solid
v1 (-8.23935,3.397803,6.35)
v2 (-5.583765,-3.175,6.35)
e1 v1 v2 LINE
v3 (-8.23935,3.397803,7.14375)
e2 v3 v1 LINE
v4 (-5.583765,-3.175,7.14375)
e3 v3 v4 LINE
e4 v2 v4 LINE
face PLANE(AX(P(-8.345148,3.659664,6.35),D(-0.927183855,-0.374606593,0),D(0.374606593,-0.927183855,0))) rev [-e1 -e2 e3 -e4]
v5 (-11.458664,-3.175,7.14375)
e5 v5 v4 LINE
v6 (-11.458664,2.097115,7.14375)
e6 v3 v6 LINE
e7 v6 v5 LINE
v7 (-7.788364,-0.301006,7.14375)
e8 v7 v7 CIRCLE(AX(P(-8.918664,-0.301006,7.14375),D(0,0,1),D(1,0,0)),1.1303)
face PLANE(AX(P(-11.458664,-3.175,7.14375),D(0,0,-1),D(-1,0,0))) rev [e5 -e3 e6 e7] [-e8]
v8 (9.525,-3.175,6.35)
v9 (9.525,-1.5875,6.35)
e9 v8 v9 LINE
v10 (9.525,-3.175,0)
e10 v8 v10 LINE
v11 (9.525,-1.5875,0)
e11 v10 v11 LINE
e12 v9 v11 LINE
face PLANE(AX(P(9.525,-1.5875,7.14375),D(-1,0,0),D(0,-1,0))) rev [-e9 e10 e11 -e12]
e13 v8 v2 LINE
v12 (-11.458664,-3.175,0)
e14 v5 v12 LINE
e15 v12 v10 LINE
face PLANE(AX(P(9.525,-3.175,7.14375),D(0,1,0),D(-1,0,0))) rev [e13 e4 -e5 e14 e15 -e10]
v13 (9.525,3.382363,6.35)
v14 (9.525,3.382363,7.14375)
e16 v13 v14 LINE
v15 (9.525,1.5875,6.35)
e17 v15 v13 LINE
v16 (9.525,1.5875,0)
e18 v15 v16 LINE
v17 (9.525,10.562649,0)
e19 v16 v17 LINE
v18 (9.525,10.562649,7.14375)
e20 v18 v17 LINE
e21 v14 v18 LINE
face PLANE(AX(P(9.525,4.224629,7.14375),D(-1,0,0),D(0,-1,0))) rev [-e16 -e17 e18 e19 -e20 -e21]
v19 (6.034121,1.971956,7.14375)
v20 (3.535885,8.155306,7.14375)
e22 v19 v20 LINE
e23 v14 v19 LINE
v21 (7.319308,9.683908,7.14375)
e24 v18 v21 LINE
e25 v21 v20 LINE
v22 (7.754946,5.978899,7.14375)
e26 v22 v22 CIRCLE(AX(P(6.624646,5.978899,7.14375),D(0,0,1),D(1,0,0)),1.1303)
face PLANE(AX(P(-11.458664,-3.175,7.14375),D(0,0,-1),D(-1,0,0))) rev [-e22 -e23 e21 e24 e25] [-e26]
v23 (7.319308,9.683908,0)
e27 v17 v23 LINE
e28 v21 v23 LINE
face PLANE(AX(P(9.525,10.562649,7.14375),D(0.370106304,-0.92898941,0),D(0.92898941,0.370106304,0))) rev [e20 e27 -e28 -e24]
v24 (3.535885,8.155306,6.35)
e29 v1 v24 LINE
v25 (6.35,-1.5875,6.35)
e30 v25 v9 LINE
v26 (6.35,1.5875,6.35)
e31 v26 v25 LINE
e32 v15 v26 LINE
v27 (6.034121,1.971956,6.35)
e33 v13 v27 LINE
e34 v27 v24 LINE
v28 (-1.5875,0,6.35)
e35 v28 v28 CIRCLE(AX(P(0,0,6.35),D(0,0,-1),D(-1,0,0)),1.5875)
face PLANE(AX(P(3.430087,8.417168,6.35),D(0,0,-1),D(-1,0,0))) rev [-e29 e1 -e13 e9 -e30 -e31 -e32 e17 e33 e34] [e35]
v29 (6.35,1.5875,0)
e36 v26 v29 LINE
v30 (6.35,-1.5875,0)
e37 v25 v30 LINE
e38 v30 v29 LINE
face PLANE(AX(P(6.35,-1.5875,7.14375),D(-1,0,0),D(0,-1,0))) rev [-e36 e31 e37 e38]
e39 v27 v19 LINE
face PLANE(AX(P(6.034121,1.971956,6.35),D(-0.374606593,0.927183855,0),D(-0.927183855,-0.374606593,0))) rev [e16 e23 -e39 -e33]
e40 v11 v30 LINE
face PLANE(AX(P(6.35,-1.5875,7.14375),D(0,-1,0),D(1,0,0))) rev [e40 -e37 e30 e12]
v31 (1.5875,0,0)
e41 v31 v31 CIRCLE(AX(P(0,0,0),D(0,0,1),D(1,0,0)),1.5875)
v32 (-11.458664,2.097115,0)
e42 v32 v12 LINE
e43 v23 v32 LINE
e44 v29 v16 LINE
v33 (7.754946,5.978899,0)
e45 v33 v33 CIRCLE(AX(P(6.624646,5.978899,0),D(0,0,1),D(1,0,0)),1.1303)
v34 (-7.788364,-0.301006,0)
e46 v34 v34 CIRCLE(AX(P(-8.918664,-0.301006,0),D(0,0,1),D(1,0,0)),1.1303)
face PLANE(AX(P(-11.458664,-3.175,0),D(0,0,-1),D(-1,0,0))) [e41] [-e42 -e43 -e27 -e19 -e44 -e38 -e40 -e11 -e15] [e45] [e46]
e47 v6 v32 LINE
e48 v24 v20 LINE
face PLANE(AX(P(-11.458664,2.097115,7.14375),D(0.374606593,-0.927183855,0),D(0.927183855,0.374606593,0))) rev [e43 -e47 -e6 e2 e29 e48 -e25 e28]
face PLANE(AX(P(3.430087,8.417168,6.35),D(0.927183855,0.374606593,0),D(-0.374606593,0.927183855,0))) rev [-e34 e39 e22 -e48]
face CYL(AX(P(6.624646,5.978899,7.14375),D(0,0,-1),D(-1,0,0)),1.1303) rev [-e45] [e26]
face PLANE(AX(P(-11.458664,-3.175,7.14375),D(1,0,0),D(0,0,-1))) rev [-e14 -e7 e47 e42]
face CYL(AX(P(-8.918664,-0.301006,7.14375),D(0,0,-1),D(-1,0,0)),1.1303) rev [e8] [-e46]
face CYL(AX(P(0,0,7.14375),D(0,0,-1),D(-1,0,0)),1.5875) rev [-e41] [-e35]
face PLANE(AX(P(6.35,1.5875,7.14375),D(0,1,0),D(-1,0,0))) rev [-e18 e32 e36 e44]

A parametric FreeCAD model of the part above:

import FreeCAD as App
import Part
import Sketcher
Q = App.Units.Quantity


def add_polygon(sketch, points):
    """Adds a closed chain of lines whose ends are joined by coincident constraints."""
    first, n = sketch.GeometryCount, len(points)
    for a, b in zip(points, points[1:] + points[:1]):
        sketch.addGeometry(Part.LineSegment(App.Vector(*a, 0), App.Vector(*b, 0)), False)
    for i in range(n):
        sketch.addConstraint(Sketcher.Constraint("Coincident", first + i, 2, first + (i + 1) % n, 1))

doc = App.newDocument("Part")
body = doc.addObject("PartDesign::Body", "Body")

# Sketch on XY plane
sketch1 = body.newObject("Sketcher::SketchObject", "Sketch")
sketch1.AttachmentSupport = (doc.getObject("XY_Plane"), [""])
sketch1.MapMode = "FlatFace"
add_polygon(sketch1, [(6.3, 1.6), (9.5, 1.6), (9.5, 10.6), (7.3, 9.7), (-11.5, 2.1), (-11.5, -3.2), (9.5, -3.2), (9.5, -1.6), (6.3, -1.6)])  # lines 0-8
sketch1.addGeometry(Part.Circle(App.Vector(-8.9, -0.3, 0), App.Vector(0, 0, 1), 1.1), False)  # 9
sketch1.addGeometry(Part.Circle(App.Vector(0, 0, 0), App.Vector(0, 0, 1), 1.6), False)  # 10
sketch1.addGeometry(Part.Circle(App.Vector(6.6, 6, 0), App.Vector(0, 0, 1), 1.1), False)  # 11
sketch1.addConstraint(Sketcher.Constraint("Horizontal", 0))
sketch1.addConstraint(Sketcher.Constraint("Vertical", 1))
sketch1.addConstraint(Sketcher.Constraint("Vertical", 4))
sketch1.addConstraint(Sketcher.Constraint("Horizontal", 5))
sketch1.addConstraint(Sketcher.Constraint("Vertical", 6))
sketch1.addConstraint(Sketcher.Constraint("Horizontal", 7))
sketch1.addConstraint(Sketcher.Constraint("Vertical", 8))
sketch1.addConstraint(Sketcher.Constraint("Coincident", 10, 3, -1, 1))
sketch1.addConstraint(Sketcher.Constraint("Equal", 9, 11))
sketch1.addConstraint(Sketcher.Constraint("Symmetric", 0, 2, 6, 2, -1))
sketch1.addConstraint(Sketcher.Constraint("Equal", 7, 8))
sketch1.addConstraint(Sketcher.Constraint("Diameter", 9, Q("0.089 in")))
sketch1.addConstraint(Sketcher.Constraint("Diameter", 10, Q("0.125 in")))
sketch1.addConstraint(Sketcher.Constraint("Angle", 3, Q("-158 deg")))
sketch1.addConstraint(Sketcher.Constraint("DistanceX", 3, 2, 9, 3, Q("0.1 in")))
sketch1.addConstraint(Sketcher.Constraint("DistanceX", 0, 1, 0, 2, Q("0.125 in")))
sketch1.addConstraint(Sketcher.Constraint("DistanceY", 6, 1, 6, 2, Q("0.0625 in")))
sketch1.addConstraint(Sketcher.Constraint("DistanceX", -1, 1, 7, 2, Q("0.25 in")))
sketch1.addConstraint(Sketcher.Constraint("DistanceY", 1, 1, 1, 2, 8.975149))
sketch1.addConstraint(Sketcher.Constraint("DistanceY", -1, 1, 11, 3, 5.978899))
sketch1.addConstraint(Sketcher.Constraint("DistanceX", 5, 1, 5, 2, 20.983664))
sketch1.addConstraint(Sketcher.Constraint("DistanceY", 4, 2, 4, 1, 5.272115))
sketch1.addConstraint(Sketcher.Constraint("DistanceY", -1, 1, 2, 2, 9.683908))
sketch1.addConstraint(Sketcher.Constraint("DistanceX", 9, 3, 11, 3, 15.54331))
sketch1.addConstraint(Sketcher.Constraint("DistanceY", 9, 3, 3, 2, 2.398121))
pad1 = body.newObject("PartDesign::Pad", "Pad")
pad1.Profile = sketch1
pad1.Length = Q("0.28125 in")

# Sketch on XY plane
sketch2 = body.newObject("Sketcher::SketchObject", "Sketch001")
sketch2.AttachmentSupport = (doc.getObject("XY_Plane"), [""])
sketch2.MapMode = "FlatFace"
sketch2.AttachmentOffset = App.Placement(App.Vector(0, 0, 0.28125 * 25.4), App.Rotation())
add_polygon(sketch2, [(-8.3, 3.7), (-5.5, -3.5), (9.5, -3.2), (9.5, 3.4), (6, 2), (3.4, 8.4)])  # lines 0-5
sketch2.addConstraint(Sketcher.Constraint("Vertical", 2))
sketch2.addConstraint(Sketcher.Constraint("Perpendicular", 0, 3))
sketch2.addConstraint(Sketcher.Constraint("Perpendicular", 3, 4))
sketch2.addConstraint(Sketcher.Constraint("Perpendicular", 4, 5))
sketch2.addConstraint(Sketcher.Constraint("Angle", 0, Q("-68 deg")))
sketch2.addConstraint(Sketcher.Constraint("Distance", 5, Q("0.5 in")))
sketch2.addConstraint(Sketcher.Constraint("DistanceX", -1, 1, 1, 2, Q("0.375 in")))
sketch2.addConstraint(Sketcher.Constraint("DistanceY", 2, 1, 2, 2, 6.60155))
sketch2.addConstraint(Sketcher.Constraint("DistanceY", 0, 2, 2, 2, 6.887))
sketch2.addConstraint(Sketcher.Constraint("DistanceY", 0, 2, 5, 2, 7.164301))
sketch2.addConstraint(Sketcher.Constraint("DistanceX", -1, 1, 3, 2, 6.034121))
sketch2.addConstraint(Sketcher.Constraint("DistanceY", 0, 2, -1, 1, 3.504637))
pocket1 = body.newObject("PartDesign::Pocket", "Pocket")
pocket1.Profile = sketch2
pocket1.Length = Q("0.03125 in")

doc.recompute()
